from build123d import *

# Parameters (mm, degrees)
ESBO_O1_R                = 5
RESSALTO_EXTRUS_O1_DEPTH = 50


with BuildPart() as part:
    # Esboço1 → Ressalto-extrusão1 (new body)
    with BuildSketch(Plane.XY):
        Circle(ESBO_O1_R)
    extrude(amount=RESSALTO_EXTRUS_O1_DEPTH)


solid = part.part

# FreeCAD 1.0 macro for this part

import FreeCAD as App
import Part
import Sketcher
from FreeCAD import Vector

doc = App.newDocument("Part")
body = doc.addObject("PartDesign::Body", "Body")

sketch1 = body.newObject("Sketcher::SketchObject", "Sketch")
sketch1.AttachmentSupport = (doc.getObject("XY_Plane"), [""])
sketch1.MapMode = "FlatFace"
sketch1.addGeometry(Part.Circle(Vector(0, 0, 0), Vector(0, 0, 1), 5), False)
sketch1.addConstraint([
    Sketcher.Constraint("Coincident", 0, 3, -1, 1),
    Sketcher.Constraint("Diameter", 0, 10.0),
])
pad1 = body.newObject("PartDesign::Pad", "Pad")
pad1.Profile = sketch1
pad1.Length = 50

doc.recompute()
